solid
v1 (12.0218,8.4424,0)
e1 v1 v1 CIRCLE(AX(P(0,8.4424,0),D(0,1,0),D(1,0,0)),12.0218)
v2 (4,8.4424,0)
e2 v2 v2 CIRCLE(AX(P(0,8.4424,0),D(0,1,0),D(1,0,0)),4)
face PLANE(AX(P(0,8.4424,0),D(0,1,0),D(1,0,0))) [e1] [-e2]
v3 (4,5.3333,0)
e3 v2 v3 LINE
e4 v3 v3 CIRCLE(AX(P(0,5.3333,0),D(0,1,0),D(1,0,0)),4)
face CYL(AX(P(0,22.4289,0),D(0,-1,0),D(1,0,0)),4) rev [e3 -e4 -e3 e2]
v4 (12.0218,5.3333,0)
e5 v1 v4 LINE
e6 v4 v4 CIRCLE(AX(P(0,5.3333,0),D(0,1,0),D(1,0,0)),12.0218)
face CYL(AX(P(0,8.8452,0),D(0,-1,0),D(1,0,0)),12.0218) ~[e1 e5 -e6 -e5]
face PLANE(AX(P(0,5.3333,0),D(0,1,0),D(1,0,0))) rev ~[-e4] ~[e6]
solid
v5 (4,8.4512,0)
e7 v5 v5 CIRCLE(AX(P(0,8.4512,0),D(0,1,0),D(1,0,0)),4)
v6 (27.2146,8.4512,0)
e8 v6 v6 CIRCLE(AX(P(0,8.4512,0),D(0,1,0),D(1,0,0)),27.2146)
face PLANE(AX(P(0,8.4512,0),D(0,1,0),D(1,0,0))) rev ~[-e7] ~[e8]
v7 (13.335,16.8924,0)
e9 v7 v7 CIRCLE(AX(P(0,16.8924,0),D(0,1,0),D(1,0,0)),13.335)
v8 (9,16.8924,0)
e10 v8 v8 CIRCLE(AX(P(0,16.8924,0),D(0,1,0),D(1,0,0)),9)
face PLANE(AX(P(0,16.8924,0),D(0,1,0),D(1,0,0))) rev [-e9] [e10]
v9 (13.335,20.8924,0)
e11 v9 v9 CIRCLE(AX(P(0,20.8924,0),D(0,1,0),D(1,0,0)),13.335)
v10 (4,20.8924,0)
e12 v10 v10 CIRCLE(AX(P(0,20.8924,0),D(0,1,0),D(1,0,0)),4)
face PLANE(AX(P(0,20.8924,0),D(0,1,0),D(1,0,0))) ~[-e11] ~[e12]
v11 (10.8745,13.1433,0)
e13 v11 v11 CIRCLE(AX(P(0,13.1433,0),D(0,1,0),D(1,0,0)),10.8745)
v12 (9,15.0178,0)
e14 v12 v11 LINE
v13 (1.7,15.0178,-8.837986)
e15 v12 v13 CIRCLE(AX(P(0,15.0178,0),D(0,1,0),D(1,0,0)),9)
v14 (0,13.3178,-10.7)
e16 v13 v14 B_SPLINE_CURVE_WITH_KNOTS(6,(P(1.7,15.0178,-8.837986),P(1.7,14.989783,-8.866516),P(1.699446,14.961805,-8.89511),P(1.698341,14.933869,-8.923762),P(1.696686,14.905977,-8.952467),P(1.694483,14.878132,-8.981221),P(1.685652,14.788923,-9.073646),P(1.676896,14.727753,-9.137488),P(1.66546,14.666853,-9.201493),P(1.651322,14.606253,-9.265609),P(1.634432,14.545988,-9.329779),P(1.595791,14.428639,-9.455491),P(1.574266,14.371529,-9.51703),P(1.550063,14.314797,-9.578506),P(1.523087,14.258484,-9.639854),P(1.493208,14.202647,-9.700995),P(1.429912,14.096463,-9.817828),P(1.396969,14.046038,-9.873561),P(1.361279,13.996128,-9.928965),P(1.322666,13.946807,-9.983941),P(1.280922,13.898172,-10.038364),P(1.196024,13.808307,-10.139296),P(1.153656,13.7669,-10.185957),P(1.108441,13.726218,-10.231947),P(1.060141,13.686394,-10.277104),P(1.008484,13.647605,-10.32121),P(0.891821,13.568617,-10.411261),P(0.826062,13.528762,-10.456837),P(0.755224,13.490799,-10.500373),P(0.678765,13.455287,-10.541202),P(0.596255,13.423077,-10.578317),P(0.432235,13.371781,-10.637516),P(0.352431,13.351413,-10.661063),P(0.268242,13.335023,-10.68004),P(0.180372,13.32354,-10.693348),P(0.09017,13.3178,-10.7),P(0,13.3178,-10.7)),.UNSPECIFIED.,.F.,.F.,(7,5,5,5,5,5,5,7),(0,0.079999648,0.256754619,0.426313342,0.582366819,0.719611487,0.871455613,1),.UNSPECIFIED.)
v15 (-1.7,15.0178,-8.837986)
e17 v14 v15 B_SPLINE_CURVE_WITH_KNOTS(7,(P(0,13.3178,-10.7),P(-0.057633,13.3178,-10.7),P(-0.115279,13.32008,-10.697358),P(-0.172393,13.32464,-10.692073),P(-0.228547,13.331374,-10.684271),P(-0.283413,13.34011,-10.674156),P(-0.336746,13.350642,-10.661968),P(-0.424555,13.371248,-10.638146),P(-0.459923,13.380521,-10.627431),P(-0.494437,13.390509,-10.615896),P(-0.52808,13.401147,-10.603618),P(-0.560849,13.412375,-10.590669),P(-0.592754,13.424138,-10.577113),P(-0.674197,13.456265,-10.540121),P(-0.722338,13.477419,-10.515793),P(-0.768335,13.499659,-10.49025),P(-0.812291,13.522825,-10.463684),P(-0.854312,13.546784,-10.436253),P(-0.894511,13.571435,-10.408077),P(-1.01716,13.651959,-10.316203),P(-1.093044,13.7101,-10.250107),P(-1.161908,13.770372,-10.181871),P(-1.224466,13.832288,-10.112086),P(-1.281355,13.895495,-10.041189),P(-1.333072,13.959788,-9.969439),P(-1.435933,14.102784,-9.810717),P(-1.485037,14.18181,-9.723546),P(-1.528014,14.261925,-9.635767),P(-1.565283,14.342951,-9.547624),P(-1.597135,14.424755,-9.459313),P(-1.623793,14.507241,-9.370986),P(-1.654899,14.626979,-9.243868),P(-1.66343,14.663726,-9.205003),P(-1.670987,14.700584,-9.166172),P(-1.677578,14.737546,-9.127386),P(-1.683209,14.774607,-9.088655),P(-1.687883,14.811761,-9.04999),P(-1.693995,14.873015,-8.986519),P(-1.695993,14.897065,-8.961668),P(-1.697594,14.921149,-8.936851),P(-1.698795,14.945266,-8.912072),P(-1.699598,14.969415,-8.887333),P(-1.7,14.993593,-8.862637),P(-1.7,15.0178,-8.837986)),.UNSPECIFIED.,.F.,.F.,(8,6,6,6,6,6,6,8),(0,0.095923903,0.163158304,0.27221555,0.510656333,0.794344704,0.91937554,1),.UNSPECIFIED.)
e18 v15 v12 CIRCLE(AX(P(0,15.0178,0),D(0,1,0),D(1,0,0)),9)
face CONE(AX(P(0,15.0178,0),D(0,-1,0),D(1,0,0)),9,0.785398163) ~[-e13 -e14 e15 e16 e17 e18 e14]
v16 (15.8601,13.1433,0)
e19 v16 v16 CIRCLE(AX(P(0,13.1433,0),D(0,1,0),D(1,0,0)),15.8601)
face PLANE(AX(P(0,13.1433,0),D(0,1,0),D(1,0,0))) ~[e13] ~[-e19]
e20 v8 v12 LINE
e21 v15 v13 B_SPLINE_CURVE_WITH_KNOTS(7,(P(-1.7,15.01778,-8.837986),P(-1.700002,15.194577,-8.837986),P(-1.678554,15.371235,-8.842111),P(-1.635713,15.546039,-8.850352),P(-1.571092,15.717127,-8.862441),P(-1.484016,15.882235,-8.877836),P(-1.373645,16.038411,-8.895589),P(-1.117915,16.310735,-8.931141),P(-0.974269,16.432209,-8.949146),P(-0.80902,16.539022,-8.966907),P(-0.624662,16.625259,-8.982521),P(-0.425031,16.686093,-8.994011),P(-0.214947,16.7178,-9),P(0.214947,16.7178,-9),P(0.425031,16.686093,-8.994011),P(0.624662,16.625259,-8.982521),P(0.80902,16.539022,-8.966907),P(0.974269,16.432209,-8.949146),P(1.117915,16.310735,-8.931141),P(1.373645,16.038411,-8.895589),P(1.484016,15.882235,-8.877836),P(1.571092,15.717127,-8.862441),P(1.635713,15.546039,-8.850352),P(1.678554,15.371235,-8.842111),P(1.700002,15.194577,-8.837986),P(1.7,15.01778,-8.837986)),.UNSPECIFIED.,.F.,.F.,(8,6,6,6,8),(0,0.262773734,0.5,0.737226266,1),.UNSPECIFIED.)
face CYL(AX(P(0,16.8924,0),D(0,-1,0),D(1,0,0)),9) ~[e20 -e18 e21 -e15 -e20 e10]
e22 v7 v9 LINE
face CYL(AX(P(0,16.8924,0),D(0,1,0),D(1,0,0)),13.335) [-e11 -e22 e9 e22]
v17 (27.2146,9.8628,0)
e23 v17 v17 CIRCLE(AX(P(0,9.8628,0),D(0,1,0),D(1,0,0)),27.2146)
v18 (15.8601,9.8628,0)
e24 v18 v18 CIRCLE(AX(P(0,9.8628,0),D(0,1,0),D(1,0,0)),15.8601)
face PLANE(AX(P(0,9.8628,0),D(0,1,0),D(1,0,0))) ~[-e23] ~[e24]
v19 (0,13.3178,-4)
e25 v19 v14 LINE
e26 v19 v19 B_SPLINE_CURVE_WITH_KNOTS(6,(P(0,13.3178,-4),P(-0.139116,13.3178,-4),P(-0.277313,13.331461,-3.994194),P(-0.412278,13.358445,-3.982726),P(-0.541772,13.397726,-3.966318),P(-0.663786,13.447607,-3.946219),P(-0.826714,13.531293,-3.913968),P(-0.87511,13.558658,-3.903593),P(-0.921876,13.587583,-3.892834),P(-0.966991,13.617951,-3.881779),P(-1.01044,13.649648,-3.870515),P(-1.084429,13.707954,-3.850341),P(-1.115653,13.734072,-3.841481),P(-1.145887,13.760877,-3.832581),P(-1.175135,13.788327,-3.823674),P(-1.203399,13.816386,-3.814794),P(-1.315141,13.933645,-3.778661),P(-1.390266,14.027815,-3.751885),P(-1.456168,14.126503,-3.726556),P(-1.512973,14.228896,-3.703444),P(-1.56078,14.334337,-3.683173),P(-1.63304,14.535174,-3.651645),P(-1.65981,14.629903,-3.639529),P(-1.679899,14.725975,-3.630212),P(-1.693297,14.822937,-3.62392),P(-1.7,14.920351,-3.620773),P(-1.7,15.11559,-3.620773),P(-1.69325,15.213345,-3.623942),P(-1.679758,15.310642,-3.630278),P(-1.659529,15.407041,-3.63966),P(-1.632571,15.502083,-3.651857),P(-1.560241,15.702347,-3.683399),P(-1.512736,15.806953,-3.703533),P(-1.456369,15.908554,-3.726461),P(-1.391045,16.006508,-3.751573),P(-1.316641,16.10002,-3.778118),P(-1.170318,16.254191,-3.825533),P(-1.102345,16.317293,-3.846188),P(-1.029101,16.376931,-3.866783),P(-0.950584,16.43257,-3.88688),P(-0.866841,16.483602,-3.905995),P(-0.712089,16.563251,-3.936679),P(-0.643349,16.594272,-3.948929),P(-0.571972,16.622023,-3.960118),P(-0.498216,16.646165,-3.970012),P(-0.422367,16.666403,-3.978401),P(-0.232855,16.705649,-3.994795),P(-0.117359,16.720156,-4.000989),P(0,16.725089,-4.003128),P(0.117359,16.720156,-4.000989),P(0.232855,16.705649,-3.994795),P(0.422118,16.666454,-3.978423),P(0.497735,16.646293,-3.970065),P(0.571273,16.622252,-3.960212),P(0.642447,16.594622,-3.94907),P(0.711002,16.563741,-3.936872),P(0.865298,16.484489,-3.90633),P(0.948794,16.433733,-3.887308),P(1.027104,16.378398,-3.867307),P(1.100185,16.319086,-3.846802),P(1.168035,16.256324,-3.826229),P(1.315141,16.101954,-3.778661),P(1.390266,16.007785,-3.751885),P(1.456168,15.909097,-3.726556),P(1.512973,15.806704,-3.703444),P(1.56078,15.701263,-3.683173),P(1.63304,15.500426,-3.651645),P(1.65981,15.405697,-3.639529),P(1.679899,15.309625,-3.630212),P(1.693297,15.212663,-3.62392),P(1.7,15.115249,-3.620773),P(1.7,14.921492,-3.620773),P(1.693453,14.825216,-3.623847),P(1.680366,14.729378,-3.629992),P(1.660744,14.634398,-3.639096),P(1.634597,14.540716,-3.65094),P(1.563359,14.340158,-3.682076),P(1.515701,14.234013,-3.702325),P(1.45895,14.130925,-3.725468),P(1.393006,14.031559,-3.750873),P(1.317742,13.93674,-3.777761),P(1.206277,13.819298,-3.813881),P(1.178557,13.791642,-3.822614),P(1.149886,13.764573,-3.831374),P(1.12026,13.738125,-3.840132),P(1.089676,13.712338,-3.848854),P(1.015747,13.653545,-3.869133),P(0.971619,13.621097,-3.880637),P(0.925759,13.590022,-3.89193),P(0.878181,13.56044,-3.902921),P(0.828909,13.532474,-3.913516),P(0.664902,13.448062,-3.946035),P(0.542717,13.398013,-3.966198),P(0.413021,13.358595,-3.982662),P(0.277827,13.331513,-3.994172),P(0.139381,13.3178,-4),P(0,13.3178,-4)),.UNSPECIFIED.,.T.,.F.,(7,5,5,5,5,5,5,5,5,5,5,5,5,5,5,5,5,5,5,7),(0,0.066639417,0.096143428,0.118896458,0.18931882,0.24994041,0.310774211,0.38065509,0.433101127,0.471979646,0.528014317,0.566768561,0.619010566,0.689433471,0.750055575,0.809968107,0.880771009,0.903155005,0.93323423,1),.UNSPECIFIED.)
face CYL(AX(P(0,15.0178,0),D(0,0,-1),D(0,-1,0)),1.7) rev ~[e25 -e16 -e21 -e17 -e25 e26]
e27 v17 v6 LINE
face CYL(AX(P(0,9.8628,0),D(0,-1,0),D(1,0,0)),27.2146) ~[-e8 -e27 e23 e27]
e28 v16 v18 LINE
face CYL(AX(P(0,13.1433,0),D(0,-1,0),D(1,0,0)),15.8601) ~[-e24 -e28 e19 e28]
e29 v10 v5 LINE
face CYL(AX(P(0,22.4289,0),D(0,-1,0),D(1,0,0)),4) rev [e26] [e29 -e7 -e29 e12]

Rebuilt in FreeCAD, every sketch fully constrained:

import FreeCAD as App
import Part
import Sketcher
from FreeCAD import Vector
Q = App.Units.Quantity

doc = App.newDocument("Part")
body = doc.addObject("PartDesign::Body", "Body")
body.AllowCompound = True

# Sketch on XY plane
sketch1 = body.newObject("Sketcher::SketchObject", "Sketch")
sketch1.AttachmentSupport = (doc.getObject("XY_Plane"), [""])
sketch1.MapMode = "FlatFace"
sketch1.addGeometry([
    Part.LineSegment(Vector(9, 16.8924, 0), Vector(13.335, 16.8924, 0)),  # 0
    Part.LineSegment(Vector(13.335, 16.8924, 0), Vector(13.335, 20.8924, 0)),  # 1
    Part.LineSegment(Vector(13.335, 20.8924, 0), Vector(4, 20.8924, 0)),  # 2
    Part.LineSegment(Vector(4, 20.8924, 0), Vector(4, 8.4512, 0)),  # 3
    Part.LineSegment(Vector(4, 8.4512, 0), Vector(27.2146, 8.4512, 0)),  # 4
    Part.LineSegment(Vector(27.2146, 8.4512, 0), Vector(27.2146, 9.8628, 0)),  # 5
    Part.LineSegment(Vector(27.2146, 9.8628, 0), Vector(15.8601, 9.8628, 0)),  # 6
    Part.LineSegment(Vector(15.8601, 9.8628, 0), Vector(15.8601, 13.1433, 0)),  # 7
    Part.LineSegment(Vector(15.8601, 13.1433, 0), Vector(10.8745, 13.1433, 0)),  # 8
    Part.LineSegment(Vector(10.8745, 13.1433, 0), Vector(9, 15.0178, 0)),  # 9
    Part.LineSegment(Vector(9, 15.0178, 0), Vector(9, 16.8924, 0)),  # 10
    Part.LineSegment(Vector(12.0218, 8.4424, 0), Vector(4, 8.4424, 0)),  # 11
    Part.LineSegment(Vector(4, 8.4424, 0), Vector(4, 5.3333, 0)),  # 12
    Part.LineSegment(Vector(4, 5.3333, 0), Vector(12.0218, 5.3333, 0)),  # 13
    Part.LineSegment(Vector(12.0218, 5.3333, 0), Vector(12.0218, 8.4424, 0)),  # 14
], False)
sketch1.addConstraint([
    Sketcher.Constraint("Coincident", 0, 2, 1, 1),
    Sketcher.Constraint("Coincident", 1, 2, 2, 1),
    Sketcher.Constraint("Coincident", 2, 2, 3, 1),
    Sketcher.Constraint("Coincident", 3, 2, 4, 1),
    Sketcher.Constraint("Coincident", 4, 2, 5, 1),
    Sketcher.Constraint("Coincident", 5, 2, 6, 1),
    Sketcher.Constraint("Coincident", 6, 2, 7, 1),
    Sketcher.Constraint("Coincident", 7, 2, 8, 1),
    Sketcher.Constraint("Coincident", 8, 2, 9, 1),
    Sketcher.Constraint("Coincident", 9, 2, 10, 1),
    Sketcher.Constraint("Coincident", 10, 2, 0, 1),
    Sketcher.Constraint("Coincident", 11, 2, 12, 1),
    Sketcher.Constraint("Coincident", 12, 2, 13, 1),
    Sketcher.Constraint("Coincident", 13, 2, 14, 1),
    Sketcher.Constraint("Coincident", 14, 2, 11, 1),
    Sketcher.Constraint("Horizontal", 0),
    Sketcher.Constraint("Vertical", 1),
    Sketcher.Constraint("Horizontal", 2),
    Sketcher.Constraint("Vertical", 3),
    Sketcher.Constraint("Horizontal", 4),
    Sketcher.Constraint("Vertical", 5),
    Sketcher.Constraint("Horizontal", 6),
    Sketcher.Constraint("Vertical", 7),
    Sketcher.Constraint("Horizontal", 8),
    Sketcher.Constraint("Vertical", 10),
    Sketcher.Constraint("Horizontal", 11),
    Sketcher.Constraint("Vertical", 12),
    Sketcher.Constraint("Horizontal", 13),
    Sketcher.Constraint("Vertical", 14),
    Sketcher.Constraint("Vertical", 3, 2, 11, 2),
    Sketcher.Constraint("DistanceY", 1, 1, 1, 2, Q("4 mm")),
    Sketcher.Constraint("DistanceX", -1, 1, 2, 2, Q("4 mm")),
    Sketcher.Constraint("Angle", 9, Q("135 deg")),
    Sketcher.Constraint("DistanceX", -1, 1, 9, 2, Q("9 mm")),
    Sketcher.Constraint("DistanceX", 0, 1, 0, 2, Q("4.335 mm")),
    Sketcher.Constraint("DistanceY", 12, 2, 12, 1, Q("3.109 mm")),
    Sketcher.Constraint("DistanceX", -1, 1, 6, 2, Q("15.86 mm")),
    Sketcher.Constraint("DistanceY", 11, 2, 10, 2, Q("8.45 mm")),
    Sketcher.Constraint("DistanceY", 12, 2, 8, 2, Q("7.81 mm")),
    Sketcher.Constraint("Distance", 9, Q("2.651 mm")),
    Sketcher.Constraint("DistanceX", 4, 1, 4, 2, Q("23.2146 mm")),
    Sketcher.Constraint("DistanceX", 11, 2, 11, 1, Q("8.0218 mm")),
    Sketcher.Constraint("DistanceY", 3, 2, 3, 1, Q("12.4412 mm")),
    Sketcher.Constraint("DistanceY", 5, 1, 5, 2, Q("1.4116 mm")),
    Sketcher.Constraint("DistanceY", -1, 1, 0, 2, Q("16.8924 mm")),
])
revolution = body.newObject("PartDesign::Revolution", "Revolution")
revolution.Profile = sketch1
revolution.ReferenceAxis = (sketch1, ["V_Axis"])
revolution.Angle = 360

# Sketch on XY plane
sketch2 = body.newObject("Sketcher::SketchObject", "Sketch001")
sketch2.AttachmentSupport = (doc.getObject("XY_Plane"), [""])
sketch2.MapMode = "FlatFace"
sketch2.addGeometry(Part.Circle(Vector(0, 15.0178, 0), Vector(0, 0, 1), 1.7), False)
sketch2.addConstraint([
    Sketcher.Constraint("PointOnObject", 0, 3, -2),
    Sketcher.Constraint("Diameter", 0, Q("3.4 mm")),
    Sketcher.Constraint("DistanceY", -1, 1, 0, 3, Q("15.0178 mm")),
])
doc.recompute()
hole = body.newObject("PartDesign::Hole", "Hole")
hole.Profile = sketch2
hole.ThreadType = "None"
hole.Diameter = 3.4
hole.DepthType = "ThroughAll"

doc.recompute()
